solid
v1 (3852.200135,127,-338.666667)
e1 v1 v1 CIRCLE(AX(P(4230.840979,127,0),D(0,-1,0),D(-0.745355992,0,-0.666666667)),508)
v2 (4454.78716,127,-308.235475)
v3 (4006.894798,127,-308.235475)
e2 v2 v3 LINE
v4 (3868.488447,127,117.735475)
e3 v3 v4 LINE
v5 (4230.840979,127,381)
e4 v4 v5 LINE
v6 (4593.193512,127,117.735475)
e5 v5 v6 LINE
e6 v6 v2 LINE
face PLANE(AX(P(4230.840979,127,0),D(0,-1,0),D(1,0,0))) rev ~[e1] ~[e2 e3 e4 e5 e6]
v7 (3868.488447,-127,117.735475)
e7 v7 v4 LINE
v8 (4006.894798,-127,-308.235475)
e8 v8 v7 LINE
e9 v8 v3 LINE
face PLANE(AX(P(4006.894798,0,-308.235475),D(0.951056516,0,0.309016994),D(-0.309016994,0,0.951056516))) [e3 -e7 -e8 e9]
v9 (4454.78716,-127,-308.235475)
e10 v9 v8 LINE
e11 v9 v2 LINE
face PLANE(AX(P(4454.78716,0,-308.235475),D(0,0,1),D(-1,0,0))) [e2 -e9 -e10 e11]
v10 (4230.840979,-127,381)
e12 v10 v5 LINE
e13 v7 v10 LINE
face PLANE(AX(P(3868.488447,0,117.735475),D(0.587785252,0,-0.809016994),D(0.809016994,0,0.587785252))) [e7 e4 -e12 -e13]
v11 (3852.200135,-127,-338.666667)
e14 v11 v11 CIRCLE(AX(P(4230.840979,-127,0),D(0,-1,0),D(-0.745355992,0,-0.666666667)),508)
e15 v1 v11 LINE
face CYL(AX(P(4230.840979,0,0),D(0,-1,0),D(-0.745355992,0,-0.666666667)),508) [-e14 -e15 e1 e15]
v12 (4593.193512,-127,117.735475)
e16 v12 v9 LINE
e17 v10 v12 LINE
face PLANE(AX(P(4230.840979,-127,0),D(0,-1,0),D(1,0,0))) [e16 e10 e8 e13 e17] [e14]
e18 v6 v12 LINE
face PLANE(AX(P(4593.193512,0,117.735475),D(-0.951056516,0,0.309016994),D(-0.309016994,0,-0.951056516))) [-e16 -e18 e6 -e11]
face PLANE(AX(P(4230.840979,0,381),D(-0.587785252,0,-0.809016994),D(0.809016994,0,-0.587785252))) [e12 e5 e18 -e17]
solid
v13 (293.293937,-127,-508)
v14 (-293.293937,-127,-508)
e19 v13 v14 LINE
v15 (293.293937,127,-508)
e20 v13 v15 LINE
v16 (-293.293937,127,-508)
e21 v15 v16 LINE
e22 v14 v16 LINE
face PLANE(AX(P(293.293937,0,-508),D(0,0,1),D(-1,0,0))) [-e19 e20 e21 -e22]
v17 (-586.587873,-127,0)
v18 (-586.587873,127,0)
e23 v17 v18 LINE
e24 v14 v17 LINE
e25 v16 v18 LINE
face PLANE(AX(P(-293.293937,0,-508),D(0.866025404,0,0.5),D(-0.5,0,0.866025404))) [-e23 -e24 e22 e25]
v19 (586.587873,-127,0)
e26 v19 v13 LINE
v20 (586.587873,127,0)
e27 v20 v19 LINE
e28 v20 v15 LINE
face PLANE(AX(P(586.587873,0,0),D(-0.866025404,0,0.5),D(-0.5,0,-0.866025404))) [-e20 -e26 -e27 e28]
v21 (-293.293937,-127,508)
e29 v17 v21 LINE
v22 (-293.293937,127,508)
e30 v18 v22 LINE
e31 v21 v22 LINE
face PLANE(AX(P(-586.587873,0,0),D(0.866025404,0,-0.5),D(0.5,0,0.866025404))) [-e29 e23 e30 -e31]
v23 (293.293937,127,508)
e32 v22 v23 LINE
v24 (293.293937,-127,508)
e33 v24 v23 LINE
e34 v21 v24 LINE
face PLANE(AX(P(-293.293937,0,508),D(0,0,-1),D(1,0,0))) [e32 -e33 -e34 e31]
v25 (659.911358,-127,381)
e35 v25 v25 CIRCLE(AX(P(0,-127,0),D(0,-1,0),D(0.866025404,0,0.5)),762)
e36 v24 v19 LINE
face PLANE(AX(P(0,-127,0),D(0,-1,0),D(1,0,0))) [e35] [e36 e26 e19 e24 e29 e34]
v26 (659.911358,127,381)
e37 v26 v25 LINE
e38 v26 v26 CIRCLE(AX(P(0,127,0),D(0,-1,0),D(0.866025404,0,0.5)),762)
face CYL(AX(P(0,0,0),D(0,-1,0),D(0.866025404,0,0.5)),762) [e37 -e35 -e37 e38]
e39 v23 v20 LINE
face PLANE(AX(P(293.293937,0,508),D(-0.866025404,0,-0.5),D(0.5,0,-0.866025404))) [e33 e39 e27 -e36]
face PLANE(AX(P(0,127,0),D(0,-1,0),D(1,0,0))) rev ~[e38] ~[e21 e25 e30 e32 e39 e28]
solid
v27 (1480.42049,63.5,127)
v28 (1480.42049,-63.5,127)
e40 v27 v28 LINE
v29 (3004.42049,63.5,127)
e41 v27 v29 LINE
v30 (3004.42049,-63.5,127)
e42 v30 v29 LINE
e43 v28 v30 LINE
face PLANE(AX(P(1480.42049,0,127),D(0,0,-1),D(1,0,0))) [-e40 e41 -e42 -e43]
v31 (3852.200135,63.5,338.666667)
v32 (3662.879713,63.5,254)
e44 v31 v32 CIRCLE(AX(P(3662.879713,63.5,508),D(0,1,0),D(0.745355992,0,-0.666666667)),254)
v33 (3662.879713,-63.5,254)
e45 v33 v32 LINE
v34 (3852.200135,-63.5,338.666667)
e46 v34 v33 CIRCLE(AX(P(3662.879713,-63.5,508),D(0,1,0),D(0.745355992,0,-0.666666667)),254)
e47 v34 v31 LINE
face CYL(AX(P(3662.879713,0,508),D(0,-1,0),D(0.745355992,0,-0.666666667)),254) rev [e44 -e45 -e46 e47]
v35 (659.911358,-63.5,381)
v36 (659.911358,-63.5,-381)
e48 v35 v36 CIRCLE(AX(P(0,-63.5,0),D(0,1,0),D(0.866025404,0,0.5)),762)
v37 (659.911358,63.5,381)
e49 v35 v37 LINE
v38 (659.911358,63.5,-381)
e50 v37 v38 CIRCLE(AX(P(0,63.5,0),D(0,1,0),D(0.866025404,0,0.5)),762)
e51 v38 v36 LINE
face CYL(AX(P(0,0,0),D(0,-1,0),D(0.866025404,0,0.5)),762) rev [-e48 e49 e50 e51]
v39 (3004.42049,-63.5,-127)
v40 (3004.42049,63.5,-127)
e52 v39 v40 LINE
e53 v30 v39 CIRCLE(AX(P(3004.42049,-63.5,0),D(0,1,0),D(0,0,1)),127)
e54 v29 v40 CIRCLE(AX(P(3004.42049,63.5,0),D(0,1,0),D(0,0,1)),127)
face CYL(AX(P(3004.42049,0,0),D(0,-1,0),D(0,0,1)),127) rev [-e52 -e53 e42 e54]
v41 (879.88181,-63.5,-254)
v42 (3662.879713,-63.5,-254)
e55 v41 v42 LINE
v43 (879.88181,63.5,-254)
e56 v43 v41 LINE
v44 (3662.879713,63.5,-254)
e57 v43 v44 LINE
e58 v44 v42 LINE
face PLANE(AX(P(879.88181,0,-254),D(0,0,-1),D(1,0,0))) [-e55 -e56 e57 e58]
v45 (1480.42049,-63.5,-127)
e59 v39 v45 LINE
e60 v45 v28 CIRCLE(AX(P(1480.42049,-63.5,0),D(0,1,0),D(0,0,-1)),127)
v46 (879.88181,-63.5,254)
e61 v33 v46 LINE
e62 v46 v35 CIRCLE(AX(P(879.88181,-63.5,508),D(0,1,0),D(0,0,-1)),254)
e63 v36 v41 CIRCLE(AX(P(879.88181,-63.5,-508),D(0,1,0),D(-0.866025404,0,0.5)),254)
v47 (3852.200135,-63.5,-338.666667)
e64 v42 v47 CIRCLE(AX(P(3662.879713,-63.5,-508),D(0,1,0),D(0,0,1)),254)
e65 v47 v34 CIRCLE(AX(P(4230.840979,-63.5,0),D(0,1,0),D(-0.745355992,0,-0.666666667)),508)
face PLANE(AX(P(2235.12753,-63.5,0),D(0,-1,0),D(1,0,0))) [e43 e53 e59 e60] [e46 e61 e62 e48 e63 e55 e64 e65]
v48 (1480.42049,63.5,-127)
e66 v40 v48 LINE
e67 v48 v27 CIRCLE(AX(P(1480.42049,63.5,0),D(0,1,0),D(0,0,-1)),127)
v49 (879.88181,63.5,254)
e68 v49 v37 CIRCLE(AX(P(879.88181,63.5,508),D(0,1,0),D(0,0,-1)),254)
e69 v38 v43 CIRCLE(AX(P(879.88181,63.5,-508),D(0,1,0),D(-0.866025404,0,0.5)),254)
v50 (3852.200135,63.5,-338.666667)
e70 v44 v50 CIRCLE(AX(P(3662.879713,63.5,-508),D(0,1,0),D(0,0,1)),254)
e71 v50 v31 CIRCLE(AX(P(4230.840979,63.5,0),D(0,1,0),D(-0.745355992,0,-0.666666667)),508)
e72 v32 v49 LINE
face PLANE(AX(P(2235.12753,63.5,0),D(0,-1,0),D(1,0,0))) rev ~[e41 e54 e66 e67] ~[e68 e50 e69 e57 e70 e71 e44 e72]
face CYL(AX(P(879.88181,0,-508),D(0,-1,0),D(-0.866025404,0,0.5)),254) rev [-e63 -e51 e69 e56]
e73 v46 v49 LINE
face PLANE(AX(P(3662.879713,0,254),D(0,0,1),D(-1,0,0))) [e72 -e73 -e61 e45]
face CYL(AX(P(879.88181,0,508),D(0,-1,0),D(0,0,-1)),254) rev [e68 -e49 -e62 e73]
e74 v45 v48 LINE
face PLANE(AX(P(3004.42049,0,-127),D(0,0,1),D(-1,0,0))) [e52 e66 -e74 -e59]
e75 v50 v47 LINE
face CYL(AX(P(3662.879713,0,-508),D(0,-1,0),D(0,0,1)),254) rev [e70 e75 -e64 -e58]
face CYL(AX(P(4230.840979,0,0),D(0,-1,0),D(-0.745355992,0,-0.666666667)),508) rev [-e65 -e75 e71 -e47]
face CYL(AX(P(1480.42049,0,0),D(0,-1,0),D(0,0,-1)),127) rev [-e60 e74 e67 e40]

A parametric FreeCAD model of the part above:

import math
import FreeCAD as App
import Part
import Sketcher
Q = App.Units.Quantity

doc = App.newDocument("Part")
body = doc.addObject("PartDesign::Body", "Body")

# Sketch on XZ plane
sketch1 = body.newObject("Sketcher::SketchObject", "Sketch")
sketch1.AttachmentSupport = (doc.getObject("XZ_Plane"), [""])
sketch1.MapMode = "FlatFace"
sketch1.addGeometry(Part.Circle(App.Vector(0, 0, 0), App.Vector(0, 0, 1), 762), False)
sketch1.addGeometry(Part.LineSegment(App.Vector(293.293937, 508, 0), App.Vector(586.587873, 0, 0)), False)
sketch1.addGeometry(Part.LineSegment(App.Vector(586.587873, 0, 0), App.Vector(293.293937, -508, 0)), False)
sketch1.addGeometry(Part.LineSegment(App.Vector(293.293937, -508, 0), App.Vector(-293.293937, -508, 0)), False)
sketch1.addGeometry(Part.LineSegment(App.Vector(-293.293937, -508, 0), App.Vector(-586.587873, 0, 0)), False)
sketch1.addGeometry(Part.LineSegment(App.Vector(-586.587873, 0, 0), App.Vector(-293.293937, 508, 0)), False)
sketch1.addGeometry(Part.LineSegment(App.Vector(-293.293937, 508, 0), App.Vector(293.293937, 508, 0)), False)
sketch1.addConstraint(Sketcher.Constraint("Coincident", 1, 2, 2, 1))
sketch1.addConstraint(Sketcher.Constraint("Coincident", 2, 2, 3, 1))
sketch1.addConstraint(Sketcher.Constraint("Coincident", 3, 2, 4, 1))
sketch1.addConstraint(Sketcher.Constraint("Coincident", 4, 2, 5, 1))
sketch1.addConstraint(Sketcher.Constraint("Coincident", 5, 2, 6, 1))
sketch1.addConstraint(Sketcher.Constraint("Coincident", 6, 2, 1, 1))
sketch1.addConstraint(Sketcher.Constraint("Horizontal", 3))
sketch1.addConstraint(Sketcher.Constraint("Horizontal", 6))
sketch1.addConstraint(Sketcher.Constraint("Coincident", 0, 3, -1, 1))
sketch1.addConstraint(Sketcher.Constraint("Symmetric", 1, 2, 4, 2, -1, 1))
sketch1.addConstraint(Sketcher.Constraint("Symmetric", 2, 2, 5, 2, -1, 1))
sketch1.addConstraint(Sketcher.Constraint("PointOnObject", 1, 2, -1))
sketch1.addConstraint(Sketcher.Constraint("Parallel", 1, 4))
sketch1.addConstraint(Sketcher.Constraint("Vertical", 3, 2, 5, 2))
sketch1.addConstraint(Sketcher.Constraint("Diameter", 0, Q("60 in")))
sketch1.addConstraint(Sketcher.Constraint("DistanceY", 2, 2, -1, 1, Q("20 in")))
sketch1.addConstraint(Sketcher.Constraint("Angle", 1, Q("-60 deg")))
sketch1.addConstraint(Sketcher.Constraint("DistanceX", 3, 2, 3, 1, 586.587873))
pad1 = body.newObject("PartDesign::Pad", "Pad")
pad1.Profile = sketch1
pad1.Length = Q("10 in")
pad1.Midplane = True
body2 = doc.addObject("PartDesign::Body", "Body001")

# Sketch on XZ plane
sketch2 = body2.newObject("Sketcher::SketchObject", "Sketch001")
sketch2.AttachmentSupport = (doc.getObject("XZ_Plane001"), [""])
sketch2.MapMode = "FlatFace"
sketch2.addGeometry(Part.Circle(App.Vector(4230.840979, 0, 0), App.Vector(0, 0, 1), 508), False)
sketch2.addGeometry(Part.LineSegment(App.Vector(4230.840979, 381, 0), App.Vector(4593.193512, 117.735475, 0)), False)
sketch2.addGeometry(Part.LineSegment(App.Vector(4593.193512, 117.735475, 0), App.Vector(4454.78716, -308.235475, 0)), False)
sketch2.addGeometry(Part.LineSegment(App.Vector(4454.78716, -308.235475, 0), App.Vector(4006.894798, -308.235475, 0)), False)
sketch2.addGeometry(Part.LineSegment(App.Vector(4006.894798, -308.235475, 0), App.Vector(3868.488447, 117.735475, 0)), False)
sketch2.addGeometry(Part.LineSegment(App.Vector(3868.488447, 117.735475, 0), App.Vector(4230.840979, 381, 0)), False)
sketch2.addConstraint(Sketcher.Constraint("Coincident", 1, 2, 2, 1))
sketch2.addConstraint(Sketcher.Constraint("Coincident", 2, 2, 3, 1))
sketch2.addConstraint(Sketcher.Constraint("Coincident", 3, 2, 4, 1))
sketch2.addConstraint(Sketcher.Constraint("Coincident", 4, 2, 5, 1))
sketch2.addConstraint(Sketcher.Constraint("Coincident", 5, 2, 1, 1))
sketch2.addConstraint(Sketcher.Constraint("Horizontal", 3))
sketch2.addConstraint(Sketcher.Constraint("PointOnObject", 0, 3, -1))
sketch2.addConstraint(Sketcher.Constraint("Horizontal", 1, 2, 4, 2))
sketch2.addConstraint(Sketcher.Constraint("Vertical", 0, 3, 5, 2))
sketch2.addConstraint(Sketcher.Constraint("Equal", 1, 2))
sketch2.addConstraint(Sketcher.Constraint("Equal", 2, 4))
sketch2.addConstraint(Sketcher.Constraint("Equal", 4, 5))
sketch2.addConstraint(Sketcher.Constraint("Diameter", 0, Q("40 in")))
sketch2.addConstraint(Sketcher.Constraint("DistanceY", -1, 1, 5, 2, Q("15 in")))
sketch2.addConstraint(Sketcher.Constraint("Angle", 1, Q("-36 deg")))
sketch2.addConstraint(Sketcher.Constraint("Angle", 2, Q("-108 deg")))
sketch2.addConstraint(Sketcher.Constraint("DistanceX", -1, 1, 3, 2, 4006.894798))
sketch2.addConstraint(Sketcher.Constraint("DistanceX", 3, 2, 3, 1, 447.892362))
pad2 = body2.newObject("PartDesign::Pad", "Pad001")
pad2.Profile = sketch2
pad2.Length = Q("10 in")
pad2.Midplane = True
body3 = doc.addObject("PartDesign::Body", "Body002")

# Sketch on XZ plane
sketch3 = body3.newObject("Sketcher::SketchObject", "Sketch002")
sketch3.AttachmentSupport = (doc.getObject("XZ_Plane002"), [""])
sketch3.MapMode = "FlatFace"
sketch3.addGeometry(Part.ArcOfCircle(Part.Circle(App.Vector(0, 0, 0), App.Vector(0, 0, 1), 762), math.radians(-30), math.radians(30)), False)
sketch3.addGeometry(Part.ArcOfCircle(Part.Circle(App.Vector(879.88181, -508, 0), App.Vector(0, 0, 1), 254), math.radians(90), math.radians(150)), False)
sketch3.addGeometry(Part.LineSegment(App.Vector(879.88181, -254, 0), App.Vector(3662.879713, -254, 0)), False)
sketch3.addGeometry(Part.ArcOfCircle(Part.Circle(App.Vector(3662.879713, -508, 0), App.Vector(0, 0, 1), 254), math.radians(41.810315), math.radians(90)), False)
sketch3.addGeometry(Part.ArcOfCircle(Part.Circle(App.Vector(4230.840979, 0, 0), App.Vector(0, 0, 1), 508), math.radians(138.189685), math.radians(221.810315)), False)
sketch3.addGeometry(Part.ArcOfCircle(Part.Circle(App.Vector(3662.879713, 508, 0), App.Vector(0, 0, 1), 254), math.radians(-90), math.radians(-41.810315)), False)
sketch3.addGeometry(Part.LineSegment(App.Vector(3662.879713, 254, 0), App.Vector(879.88181, 254, 0)), False)
sketch3.addGeometry(Part.ArcOfCircle(Part.Circle(App.Vector(879.88181, 508, 0), App.Vector(0, 0, 1), 254), math.radians(-150), math.radians(-90)), False)
sketch3.addGeometry(Part.ArcOfCircle(Part.Circle(App.Vector(1480.42049, 0, 0), App.Vector(0, 0, 1), 127), math.radians(90), math.radians(270)), False)
sketch3.addGeometry(Part.LineSegment(App.Vector(1480.42049, 127, 0), App.Vector(3004.42049, 127, 0)), False)
sketch3.addGeometry(Part.ArcOfCircle(Part.Circle(App.Vector(3004.42049, 0, 0), App.Vector(0, 0, 1), 127), math.radians(-90), math.radians(90)), False)
sketch3.addGeometry(Part.LineSegment(App.Vector(3004.42049, -127, 0), App.Vector(1480.42049, -127, 0)), False)
sketch3.addConstraint(Sketcher.Constraint("Tangent", 0, 1, 1, 2))
sketch3.addConstraint(Sketcher.Constraint("Tangent", 1, 1, 2, 1))
sketch3.addConstraint(Sketcher.Constraint("Tangent", 2, 2, 3, 2))
sketch3.addConstraint(Sketcher.Constraint("Tangent", 3, 1, 4, 2))
sketch3.addConstraint(Sketcher.Constraint("Tangent", 4, 1, 5, 2))
sketch3.addConstraint(Sketcher.Constraint("Tangent", 5, 1, 6, 1))
sketch3.addConstraint(Sketcher.Constraint("Tangent", 6, 2, 7, 2))
sketch3.addConstraint(Sketcher.Constraint("Tangent", 7, 1, 0, 2))
sketch3.addConstraint(Sketcher.Constraint("Tangent", 8, 1, 9, 1))
sketch3.addConstraint(Sketcher.Constraint("Tangent", 9, 2, 10, 2))
sketch3.addConstraint(Sketcher.Constraint("Tangent", 10, 1, 11, 1))
sketch3.addConstraint(Sketcher.Constraint("Tangent", 11, 2, 8, 2))
sketch3.addConstraint(Sketcher.Constraint("Horizontal", 2))
sketch3.addConstraint(Sketcher.Constraint("Horizontal", 6))
sketch3.addConstraint(Sketcher.Constraint("Horizontal", 9))
sketch3.addConstraint(Sketcher.Constraint("Horizontal", 11))
sketch3.addConstraint(Sketcher.Constraint("Coincident", 0, 3, -1, 1))
sketch3.addConstraint(Sketcher.Constraint("Equal", 1, 3))
sketch3.addConstraint(Sketcher.Constraint("Equal", 3, 5))
sketch3.addConstraint(Sketcher.Constraint("Equal", 5, 7))
sketch3.addConstraint(Sketcher.Constraint("Symmetric", 3, 3, 5, 3, -1))
sketch3.addConstraint(Sketcher.Constraint("PointOnObject", 8, 3, -1))
sketch3.addConstraint(Sketcher.Constraint("Radius", 0, Q("30 in")))
sketch3.addConstraint(Sketcher.Constraint("Radius", 1, Q("10 in")))
sketch3.addConstraint(Sketcher.Constraint("Radius", 4, Q("20 in")))
sketch3.addConstraint(Sketcher.Constraint("Radius", 8, Q("5 in")))
sketch3.addConstraint(Sketcher.Constraint("DistanceX", 9, 1, 9, 2, Q("60 in")))
sketch3.addConstraint(Sketcher.Constraint("DistanceY", 1, 3, -1, 1, Q("20 in")))
sketch3.addConstraint(Sketcher.Constraint("DistanceX", 2, 1, 2, 2, 2782.997903))
sketch3.addConstraint(Sketcher.Constraint("DistanceX", -1, 1, 8, 3, 1480.42049))
pad3 = body3.newObject("PartDesign::Pad", "Pad002")
pad3.Profile = sketch3
pad3.Length = Q("5 in")
pad3.Midplane = True

doc.recompute()
